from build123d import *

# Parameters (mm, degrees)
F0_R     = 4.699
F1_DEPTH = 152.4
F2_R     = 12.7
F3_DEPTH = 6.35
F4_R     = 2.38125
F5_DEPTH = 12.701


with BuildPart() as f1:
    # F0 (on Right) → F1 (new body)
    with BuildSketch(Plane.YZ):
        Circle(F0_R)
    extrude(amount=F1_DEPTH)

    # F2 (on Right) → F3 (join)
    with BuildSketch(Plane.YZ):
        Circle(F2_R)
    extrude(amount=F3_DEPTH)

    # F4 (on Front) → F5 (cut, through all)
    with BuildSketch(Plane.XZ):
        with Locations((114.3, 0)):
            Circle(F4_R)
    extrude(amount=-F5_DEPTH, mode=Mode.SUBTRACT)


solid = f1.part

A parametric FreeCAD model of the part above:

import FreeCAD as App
import Part
import Sketcher
from FreeCAD import Vector
Q = App.Units.Quantity

doc = App.newDocument("Part")
params = doc.addObject("Spreadsheet::Sheet", "Params")
for row, (alias, value) in enumerate([
    ("sketch1_diameter", "0.37 in"),
    ("pad1_length", "6 in"),
    ("sketch2_diameter", "1 in"),
    ("pad2_length", "0.25 in"),
    ("sketch3_diameter", "0.1875 in"),
], start=1):
    params.set(f"A{row}", alias)
    params.set(f"B{row}", "=" + value)
    params.setAlias(f"B{row}", alias)

body = doc.addObject("PartDesign::Body", "Body")

# Sketch on YZ plane
sketch1 = body.newObject("Sketcher::SketchObject", "Sketch")
sketch1.AttachmentSupport = (doc.getObject("YZ_Plane"), [""])
sketch1.MapMode = "FlatFace"
sketch1.addGeometry(Part.Circle(Vector(0, 0, 0), Vector(0, 0, 1), 4.7), False)
sketch1.addConstraint([
    Sketcher.Constraint("Coincident", 0, 3, -1, 1),
    Sketcher.Constraint("Diameter", 0, Q("0.37 in")),
])
sketch1.setExpression("Constraints[1]", "Params.sketch1_diameter")
pad1 = body.newObject("PartDesign::Pad", "Pad")
pad1.Profile = sketch1
pad1.setExpression("Length", "Params.pad1_length")

# Sketch on YZ plane
sketch2 = body.newObject("Sketcher::SketchObject", "Sketch001")
sketch2.AttachmentSupport = (doc.getObject("YZ_Plane"), [""])
sketch2.MapMode = "FlatFace"
sketch2.addGeometry(Part.Circle(Vector(0, 0, 0), Vector(0, 0, 1), 13), False)
sketch2.addConstraint([
    Sketcher.Constraint("Coincident", 0, 3, -1, 1),
    Sketcher.Constraint("Diameter", 0, Q("1 in")),
])
sketch2.setExpression("Constraints[1]", "Params.sketch2_diameter")
pad2 = body.newObject("PartDesign::Pad", "Pad001")
pad2.Profile = sketch2
pad2.setExpression("Length", "Params.pad2_length")

# Sketch on XZ plane
sketch3 = body.newObject("Sketcher::SketchObject", "Sketch002")
sketch3.AttachmentSupport = (doc.getObject("XZ_Plane"), [""])
sketch3.MapMode = "FlatFace"
sketch3.addGeometry(Part.Circle(Vector(114.3, 0, 0), Vector(0, 0, 1), 2.4), False)
sketch3.addConstraint([
    Sketcher.Constraint("PointOnObject", 0, 3, -1),
    Sketcher.Constraint("Diameter", 0, Q("0.1875 in")),
    Sketcher.Constraint("DistanceX", -1, 1, 0, 3, Q("4.5 in")),
])
sketch3.setExpression("Constraints[1]", "Params.sketch3_diameter")
pocket1 = body.newObject("PartDesign::Pocket", "Pocket")
pocket1.Profile = sketch3
pocket1.Type = "ThroughAll"

doc.recompute()
